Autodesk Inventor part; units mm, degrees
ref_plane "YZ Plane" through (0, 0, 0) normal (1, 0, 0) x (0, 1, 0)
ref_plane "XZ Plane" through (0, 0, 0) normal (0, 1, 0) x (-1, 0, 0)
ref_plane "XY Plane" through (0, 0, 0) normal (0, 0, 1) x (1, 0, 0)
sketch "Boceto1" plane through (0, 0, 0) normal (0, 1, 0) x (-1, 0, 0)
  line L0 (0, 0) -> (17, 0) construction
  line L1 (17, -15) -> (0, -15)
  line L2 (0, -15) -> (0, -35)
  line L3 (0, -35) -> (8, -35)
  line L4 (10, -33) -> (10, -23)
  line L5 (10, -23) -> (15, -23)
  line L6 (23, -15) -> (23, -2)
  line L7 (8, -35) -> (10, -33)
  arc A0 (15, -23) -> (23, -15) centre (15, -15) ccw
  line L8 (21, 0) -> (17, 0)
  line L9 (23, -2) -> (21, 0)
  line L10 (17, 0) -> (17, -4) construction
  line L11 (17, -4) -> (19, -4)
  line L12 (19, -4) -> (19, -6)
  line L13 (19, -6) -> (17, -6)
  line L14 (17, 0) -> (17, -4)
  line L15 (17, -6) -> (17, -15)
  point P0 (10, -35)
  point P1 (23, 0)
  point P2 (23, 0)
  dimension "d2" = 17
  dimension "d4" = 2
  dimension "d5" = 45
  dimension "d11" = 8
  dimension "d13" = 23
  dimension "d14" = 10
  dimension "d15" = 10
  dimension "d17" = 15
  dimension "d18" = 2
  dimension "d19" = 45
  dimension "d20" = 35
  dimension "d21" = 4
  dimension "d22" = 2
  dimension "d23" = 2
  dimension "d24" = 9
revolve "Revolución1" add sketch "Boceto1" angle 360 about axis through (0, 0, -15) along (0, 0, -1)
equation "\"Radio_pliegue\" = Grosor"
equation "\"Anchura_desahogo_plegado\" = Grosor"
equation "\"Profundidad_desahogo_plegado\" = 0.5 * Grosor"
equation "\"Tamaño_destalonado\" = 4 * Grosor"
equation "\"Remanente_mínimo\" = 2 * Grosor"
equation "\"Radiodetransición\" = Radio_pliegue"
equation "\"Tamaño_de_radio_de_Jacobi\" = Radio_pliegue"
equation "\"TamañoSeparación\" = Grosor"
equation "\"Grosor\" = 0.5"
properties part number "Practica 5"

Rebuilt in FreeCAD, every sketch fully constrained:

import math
import FreeCAD as App
import Part
import Sketcher
from FreeCAD import Vector
Q = App.Units.Quantity

doc = App.newDocument("Part")
body = doc.addObject("PartDesign::Body", "Body")

sketch1 = doc.addObject("Sketcher::SketchObject", "Sketch")
body.addObject(sketch1)
sketch1.AttachmentSupport = (doc.XZ_Plane, [""])
sketch1.MapMode = "FlatFace"
sketch1.addGeometry([
    Part.LineSegment(Vector(-17, -6, 0), Vector(-17, -15, 0)),
    Part.LineSegment(Vector(-17, -15, 0), Vector(0, -15, 0)),
    Part.LineSegment(Vector(0, -15, 0), Vector(0, -35, 0)),
    Part.LineSegment(Vector(0, -35, 0), Vector(-8, -35, 0)),
    Part.LineSegment(Vector(-8, -35, 0), Vector(-10, -33, 0)),
    Part.LineSegment(Vector(-10, -33, 0), Vector(-10, -23, 0)),
    Part.LineSegment(Vector(-10, -23, 0), Vector(-15, -23, 0)),
    Part.ArcOfCircle(Part.Circle(Vector(-15, -15, 0), Vector(0, 0, 1), 8), math.radians(180), math.radians(270)),
    Part.LineSegment(Vector(-23, -15, 0), Vector(-23, -2, 0)),
    Part.LineSegment(Vector(-23, -2, 0), Vector(-21, 0, 0)),
    Part.LineSegment(Vector(-21, 0, 0), Vector(-17, 0, 0)),
    Part.LineSegment(Vector(-17, 0, 0), Vector(-17, -4, 0)),
    Part.LineSegment(Vector(-17, -4, 0), Vector(-19, -4, 0)),
    Part.LineSegment(Vector(-19, -4, 0), Vector(-19, -6, 0)),
    Part.LineSegment(Vector(-19, -6, 0), Vector(-17, -6, 0)),
], False)
sketch1.addConstraint([
    Sketcher.Constraint("Coincident", 0, 2, 1, 1),
    Sketcher.Constraint("Coincident", 1, 2, 2, 1),
    Sketcher.Constraint("Coincident", 2, 2, 3, 1),
    Sketcher.Constraint("Coincident", 3, 2, 4, 1),
    Sketcher.Constraint("Coincident", 4, 2, 5, 1),
    Sketcher.Constraint("Coincident", 5, 2, 6, 1),
    Sketcher.Constraint("Tangent", 6, 2, 7, 2),
    Sketcher.Constraint("Tangent", 7, 1, 8, 1),
    Sketcher.Constraint("Coincident", 8, 2, 9, 1),
    Sketcher.Constraint("Coincident", 9, 2, 10, 1),
    Sketcher.Constraint("Coincident", 10, 2, 11, 1),
    Sketcher.Constraint("Coincident", 11, 2, 12, 1),
    Sketcher.Constraint("Coincident", 12, 2, 13, 1),
    Sketcher.Constraint("Coincident", 13, 2, 14, 1),
    Sketcher.Constraint("Coincident", 14, 2, 0, 1),
    Sketcher.Constraint("Vertical", 0),
    Sketcher.Constraint("Horizontal", 1),
    Sketcher.Constraint("Vertical", 2),
    Sketcher.Constraint("Horizontal", 3),
    Sketcher.Constraint("Vertical", 5),
    Sketcher.Constraint("Horizontal", 6),
    Sketcher.Constraint("Vertical", 8),
    Sketcher.Constraint("Horizontal", 10),
    Sketcher.Constraint("Vertical", 11),
    Sketcher.Constraint("Horizontal", 12),
    Sketcher.Constraint("Vertical", 13),
    Sketcher.Constraint("Horizontal", 14),
    Sketcher.Constraint("PointOnObject", 1, 2, -2),
    Sketcher.Constraint("PointOnObject", 9, 2, -1),
    Sketcher.Constraint("Perpendicular", 4, 9),
    Sketcher.Constraint("Horizontal", 7, 3, 0, 2),
    Sketcher.Constraint("Vertical", 0, 2, 10, 2),
    Sketcher.Constraint("Equal", 10, 11),
    Sketcher.Constraint("Equal", 14, 13),
    Sketcher.Constraint("Equal", 4, 9),
    Sketcher.Constraint("Radius", 7, Q("8 mm")),
    Sketcher.Constraint("DistanceX", 1, 1, 1, 2, Q("17 mm")),
    Sketcher.Constraint("DistanceX", 3, 2, 3, 1, Q("8 mm")),
    Sketcher.Constraint("DistanceX", 10, 1, 10, 2, Q("4 mm")),
    Sketcher.Constraint("DistanceX", 12, 2, 12, 1, Q("2 mm")),
    Sketcher.Constraint("DistanceY", 0, 2, 0, 1, Q("9 mm")),
    Sketcher.Constraint("DistanceY", 5, 1, 5, 2, Q("10 mm")),
    Sketcher.Constraint("Angle", 9, Q("45 deg")),
    Sketcher.Constraint("DistanceX", 7, 3, -1, 1, Q("15 mm")),
])
revolution = doc.addObject("PartDesign::Revolution", "Revolution")
body.addObject(revolution)
revolution.Profile = sketch1
revolution.ReferenceAxis = (sketch1, ["V_Axis"])
revolution.Angle = 360

doc.recompute()
